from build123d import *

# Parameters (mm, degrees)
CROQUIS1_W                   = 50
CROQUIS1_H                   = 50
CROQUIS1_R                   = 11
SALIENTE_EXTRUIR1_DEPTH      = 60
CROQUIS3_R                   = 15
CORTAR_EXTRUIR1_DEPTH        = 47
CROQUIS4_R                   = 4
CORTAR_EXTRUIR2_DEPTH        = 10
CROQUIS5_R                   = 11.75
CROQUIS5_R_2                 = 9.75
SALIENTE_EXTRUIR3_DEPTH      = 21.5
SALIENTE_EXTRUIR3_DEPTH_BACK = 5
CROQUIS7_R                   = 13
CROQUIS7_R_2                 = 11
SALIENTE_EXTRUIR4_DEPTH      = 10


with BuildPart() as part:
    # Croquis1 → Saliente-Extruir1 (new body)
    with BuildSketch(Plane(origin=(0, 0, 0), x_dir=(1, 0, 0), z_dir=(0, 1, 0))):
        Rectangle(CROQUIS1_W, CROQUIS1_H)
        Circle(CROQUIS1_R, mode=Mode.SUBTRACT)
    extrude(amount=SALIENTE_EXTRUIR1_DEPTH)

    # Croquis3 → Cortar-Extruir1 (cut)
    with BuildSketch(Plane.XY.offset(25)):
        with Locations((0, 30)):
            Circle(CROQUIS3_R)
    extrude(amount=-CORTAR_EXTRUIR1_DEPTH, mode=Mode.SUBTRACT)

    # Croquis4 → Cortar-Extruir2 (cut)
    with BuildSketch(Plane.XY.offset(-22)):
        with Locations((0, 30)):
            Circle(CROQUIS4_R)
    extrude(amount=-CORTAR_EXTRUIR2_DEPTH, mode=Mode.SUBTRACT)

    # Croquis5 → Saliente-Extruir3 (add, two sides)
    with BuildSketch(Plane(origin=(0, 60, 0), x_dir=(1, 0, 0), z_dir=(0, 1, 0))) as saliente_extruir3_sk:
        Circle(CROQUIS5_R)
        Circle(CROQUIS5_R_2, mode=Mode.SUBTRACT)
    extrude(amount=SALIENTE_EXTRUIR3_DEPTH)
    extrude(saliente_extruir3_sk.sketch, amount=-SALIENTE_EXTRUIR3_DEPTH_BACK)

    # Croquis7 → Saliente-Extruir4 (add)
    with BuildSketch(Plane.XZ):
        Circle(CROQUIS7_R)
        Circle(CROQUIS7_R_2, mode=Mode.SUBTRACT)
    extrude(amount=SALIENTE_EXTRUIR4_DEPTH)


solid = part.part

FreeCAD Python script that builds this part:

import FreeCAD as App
import Part
import Sketcher
from FreeCAD import Vector
Q = App.Units.Quantity

doc = App.newDocument("Part")
body = doc.addObject("PartDesign::Body", "Body")

# Sketch on XZ plane
sketch1 = body.newObject("Sketcher::SketchObject", "Sketch")
sketch1.AttachmentSupport = (doc.getObject("XZ_Plane"), [""])
sketch1.MapMode = "FlatFace"
sketch1.addGeometry([
    Part.LineSegment(Vector(-25, -25, 0), Vector(-25, 25, 0)),  # 0
    Part.LineSegment(Vector(-25, 25, 0), Vector(25, 25, 0)),  # 1
    Part.LineSegment(Vector(25, 25, 0), Vector(25, -25, 0)),  # 2
    Part.LineSegment(Vector(25, -25, 0), Vector(-25, -25, 0)),  # 3
    Part.Circle(Vector(0, 0, 0), Vector(0, 0, 1), 11),  # 4
], False)
sketch1.addConstraint([
    Sketcher.Constraint("Coincident", 0, 2, 1, 1),
    Sketcher.Constraint("Coincident", 1, 2, 2, 1),
    Sketcher.Constraint("Coincident", 2, 2, 3, 1),
    Sketcher.Constraint("Coincident", 3, 2, 0, 1),
    Sketcher.Constraint("Vertical", 0),
    Sketcher.Constraint("Horizontal", 1),
    Sketcher.Constraint("Vertical", 2),
    Sketcher.Constraint("Horizontal", 3),
    Sketcher.Constraint("Coincident", 4, 3, -1, 1),
    Sketcher.Constraint("Symmetric", 0, 2, 2, 2, -1, 1),
    Sketcher.Constraint("Equal", 3, 0),
    Sketcher.Constraint("Diameter", 4, Q("22 mm")),
    Sketcher.Constraint("DistanceX", 1, 1, 1, 2, Q("50 mm")),
])
pad1 = body.newObject("PartDesign::Pad", "Pad")
pad1.Profile = sketch1
pad1.Length = 60
pad1.Reversed = True

# Sketch on XY plane
sketch2 = body.newObject("Sketcher::SketchObject", "Sketch001")
sketch2.AttachmentSupport = (doc.getObject("XY_Plane"), [""])
sketch2.MapMode = "FlatFace"
sketch2.AttachmentOffset = App.Placement(Vector(0, 0, 25), App.Rotation())
sketch2.addGeometry(Part.Circle(Vector(0, 30, 0), Vector(0, 0, 1), 15), False)
sketch2.addConstraint([
    Sketcher.Constraint("PointOnObject", 0, 3, -2),
    Sketcher.Constraint("Diameter", 0, Q("30 mm")),
    Sketcher.Constraint("DistanceY", -1, 1, 0, 3, Q("30 mm")),
])
pocket1 = body.newObject("PartDesign::Pocket", "Pocket")
pocket1.Profile = sketch2
pocket1.Length = 47

# Sketch on XY plane
sketch3 = body.newObject("Sketcher::SketchObject", "Sketch002")
sketch3.AttachmentSupport = (doc.getObject("XY_Plane"), [""])
sketch3.MapMode = "FlatFace"
sketch3.AttachmentOffset = App.Placement(Vector(0, 0, -22), App.Rotation())
sketch3.addGeometry(Part.Circle(Vector(0, 30, 0), Vector(0, 0, 1), 4), False)
sketch3.addConstraint([
    Sketcher.Constraint("PointOnObject", 0, 3, -2),
    Sketcher.Constraint("Diameter", 0, Q("8 mm")),
    Sketcher.Constraint("DistanceY", -1, 1, 0, 3, Q("30 mm")),
])
pocket2 = body.newObject("PartDesign::Pocket", "Pocket001")
pocket2.Profile = sketch3
pocket2.Length = 10

# Sketch on XZ plane
sketch4 = body.newObject("Sketcher::SketchObject", "Sketch003")
sketch4.AttachmentSupport = (doc.getObject("XZ_Plane"), [""])
sketch4.MapMode = "FlatFace"
sketch4.AttachmentOffset = App.Placement(Vector(0, 0, -60), App.Rotation())
sketch4.addGeometry([
    Part.Circle(Vector(0, 0, 0), Vector(0, 0, 1), 12),
    Part.Circle(Vector(0, 0, 0), Vector(0, 0, 1), 10),
], False)
sketch4.addConstraint([
    Sketcher.Constraint("Coincident", 0, 3, -1, 1),
    Sketcher.Constraint("Coincident", 1, 3, -1, 1),
    Sketcher.Constraint("Diameter", 0, Q("23.5 mm")),
    Sketcher.Constraint("Diameter", 1, Q("19.5 mm")),
])
pad2 = body.newObject("PartDesign::Pad", "Pad001")
pad2.Profile = sketch4
pad2.Type = "TwoLengths"
pad2.Length = 21.5
pad2.Length2 = 5
pad2.Reversed = True

# Sketch on XZ plane
sketch5 = body.newObject("Sketcher::SketchObject", "Sketch004")
sketch5.AttachmentSupport = (doc.getObject("XZ_Plane"), [""])
sketch5.MapMode = "FlatFace"
sketch5.addGeometry([
    Part.Circle(Vector(0, 0, 0), Vector(0, 0, 1), 13),
    Part.Circle(Vector(0, 0, 0), Vector(0, 0, 1), 11),
], False)
sketch5.addConstraint([
    Sketcher.Constraint("Coincident", 0, 3, -1, 1),
    Sketcher.Constraint("Coincident", 1, 3, -1, 1),
    Sketcher.Constraint("Diameter", 0, Q("26 mm")),
    Sketcher.Constraint("Diameter", 1, Q("22 mm")),
])
pad3 = body.newObject("PartDesign::Pad", "Pad002")
pad3.Profile = sketch5
pad3.Length = 10

doc.recompute()
